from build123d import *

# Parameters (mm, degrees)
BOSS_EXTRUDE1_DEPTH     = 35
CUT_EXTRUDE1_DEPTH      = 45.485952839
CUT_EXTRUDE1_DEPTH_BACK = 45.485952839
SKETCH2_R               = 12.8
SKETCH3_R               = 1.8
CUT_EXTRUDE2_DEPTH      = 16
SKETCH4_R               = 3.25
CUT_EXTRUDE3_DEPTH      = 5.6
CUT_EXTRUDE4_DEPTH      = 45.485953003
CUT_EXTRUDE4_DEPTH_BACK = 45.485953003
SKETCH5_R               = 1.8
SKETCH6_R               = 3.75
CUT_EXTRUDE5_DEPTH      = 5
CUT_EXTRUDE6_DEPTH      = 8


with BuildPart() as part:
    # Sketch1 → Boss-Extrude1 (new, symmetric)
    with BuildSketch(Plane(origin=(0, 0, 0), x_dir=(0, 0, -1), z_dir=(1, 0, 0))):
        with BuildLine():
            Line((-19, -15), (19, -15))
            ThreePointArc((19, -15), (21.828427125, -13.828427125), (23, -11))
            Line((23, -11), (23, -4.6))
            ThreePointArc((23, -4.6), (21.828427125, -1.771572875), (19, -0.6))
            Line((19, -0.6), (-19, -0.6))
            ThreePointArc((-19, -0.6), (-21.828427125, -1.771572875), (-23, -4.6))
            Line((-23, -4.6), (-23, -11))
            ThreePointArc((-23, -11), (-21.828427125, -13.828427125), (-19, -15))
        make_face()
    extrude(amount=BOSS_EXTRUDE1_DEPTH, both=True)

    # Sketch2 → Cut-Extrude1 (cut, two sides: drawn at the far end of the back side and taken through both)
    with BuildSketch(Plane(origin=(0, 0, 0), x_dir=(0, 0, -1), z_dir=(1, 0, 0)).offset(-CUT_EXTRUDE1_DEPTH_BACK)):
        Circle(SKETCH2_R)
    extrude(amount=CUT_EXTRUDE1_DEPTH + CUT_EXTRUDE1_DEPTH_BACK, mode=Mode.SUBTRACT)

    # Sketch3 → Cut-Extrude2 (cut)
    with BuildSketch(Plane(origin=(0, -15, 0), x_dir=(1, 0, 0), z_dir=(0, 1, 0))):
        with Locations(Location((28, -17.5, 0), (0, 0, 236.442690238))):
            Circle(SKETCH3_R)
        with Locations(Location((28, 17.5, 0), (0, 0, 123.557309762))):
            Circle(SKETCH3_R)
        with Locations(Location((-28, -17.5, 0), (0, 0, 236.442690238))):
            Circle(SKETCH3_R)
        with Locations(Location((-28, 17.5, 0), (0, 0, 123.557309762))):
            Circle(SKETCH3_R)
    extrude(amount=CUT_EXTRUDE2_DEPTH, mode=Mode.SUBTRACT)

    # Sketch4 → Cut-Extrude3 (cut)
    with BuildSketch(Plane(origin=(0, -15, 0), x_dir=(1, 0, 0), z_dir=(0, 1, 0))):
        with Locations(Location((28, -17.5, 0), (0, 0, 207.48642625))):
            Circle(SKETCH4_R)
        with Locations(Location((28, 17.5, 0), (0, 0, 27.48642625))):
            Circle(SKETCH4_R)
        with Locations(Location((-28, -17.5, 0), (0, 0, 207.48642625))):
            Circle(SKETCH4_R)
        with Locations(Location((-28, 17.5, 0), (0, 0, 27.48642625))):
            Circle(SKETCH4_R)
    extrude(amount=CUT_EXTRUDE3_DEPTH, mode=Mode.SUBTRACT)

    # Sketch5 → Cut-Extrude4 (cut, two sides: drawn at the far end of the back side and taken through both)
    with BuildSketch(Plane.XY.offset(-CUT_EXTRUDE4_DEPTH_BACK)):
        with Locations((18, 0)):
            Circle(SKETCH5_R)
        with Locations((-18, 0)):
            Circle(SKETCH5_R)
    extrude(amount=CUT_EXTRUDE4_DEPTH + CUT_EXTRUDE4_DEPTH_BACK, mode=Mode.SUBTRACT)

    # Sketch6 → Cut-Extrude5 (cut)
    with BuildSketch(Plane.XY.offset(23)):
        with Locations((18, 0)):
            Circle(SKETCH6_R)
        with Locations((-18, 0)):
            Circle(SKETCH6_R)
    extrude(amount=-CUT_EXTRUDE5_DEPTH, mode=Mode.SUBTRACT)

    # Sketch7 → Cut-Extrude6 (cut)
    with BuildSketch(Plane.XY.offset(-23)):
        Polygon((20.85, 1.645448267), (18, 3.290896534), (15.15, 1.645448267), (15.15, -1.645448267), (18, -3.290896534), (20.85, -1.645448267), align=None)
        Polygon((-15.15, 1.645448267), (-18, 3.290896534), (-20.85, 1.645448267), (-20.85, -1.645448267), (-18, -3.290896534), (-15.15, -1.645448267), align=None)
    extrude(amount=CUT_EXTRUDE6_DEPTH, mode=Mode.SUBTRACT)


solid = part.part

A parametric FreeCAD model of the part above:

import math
import FreeCAD as App
import Part
import Sketcher

V = App.Vector
Q = App.Units.Quantity


def add_polygon(sketch, points):
    """Adds a closed chain of lines whose ends are joined by coincident constraints."""
    first, n = sketch.GeometryCount, len(points)
    for a, b in zip(points, points[1:] + points[:1]):
        sketch.addGeometry(Part.LineSegment(App.Vector(*a, 0), App.Vector(*b, 0)), False)
    for i in range(n):
        sketch.addConstraint(Sketcher.Constraint("Coincident", first + i, 2, first + (i + 1) % n, 1))

doc = App.newDocument("Part")
body = doc.addObject("PartDesign::Body", "Body")

# Sketch on YZ plane
sketch1 = body.newObject("Sketcher::SketchObject", "Sketch")
sketch1.AttachmentSupport = (doc.getObject("YZ_Plane"), [""])
sketch1.MapMode = "FlatFace"
sketch1.addGeometry([
    Part.LineSegment(V(-15, 19, 0), V(-15, -19, 0)),  # 0
    Part.ArcOfCircle(Part.Circle(V(-11, -19, 0), V(0, 0, 1), 4), math.radians(180), math.radians(270)),  # 1
    Part.LineSegment(V(-11, -23, 0), V(-4.6, -23, 0)),  # 2
    Part.ArcOfCircle(Part.Circle(V(-4.6, -19, 0), V(0, 0, 1), 4), math.radians(-90), math.radians(0)),  # 3
    Part.LineSegment(V(-0.6, -19, 0), V(-0.6, 19, 0)),  # 4
    Part.ArcOfCircle(Part.Circle(V(-4.6, 19, 0), V(0, 0, 1), 4), math.radians(0), math.radians(90)),  # 5
    Part.LineSegment(V(-4.6, 23, 0), V(-11, 23, 0)),  # 6
    Part.ArcOfCircle(Part.Circle(V(-11, 19, 0), V(0, 0, 1), 4), math.radians(90), math.radians(180)),  # 7
], False)
sketch1.addConstraint([
    Sketcher.Constraint("Tangent", 0, 2, 1, 1),
    Sketcher.Constraint("Tangent", 1, 2, 2, 1),
    Sketcher.Constraint("Tangent", 2, 2, 3, 1),
    Sketcher.Constraint("Tangent", 3, 2, 4, 1),
    Sketcher.Constraint("Tangent", 4, 2, 5, 1),
    Sketcher.Constraint("Tangent", 5, 2, 6, 1),
    Sketcher.Constraint("Tangent", 6, 2, 7, 1),
    Sketcher.Constraint("Tangent", 7, 2, 0, 1),
    Sketcher.Constraint("Vertical", 0),
    Sketcher.Constraint("Horizontal", 2),
    Sketcher.Constraint("Vertical", 4),
    Sketcher.Constraint("Horizontal", 6),
    Sketcher.Constraint("Equal", 1, 3),
    Sketcher.Constraint("Equal", 3, 5),
    Sketcher.Constraint("Equal", 5, 7),
    Sketcher.Constraint("Radius", 1, 4.0),
    Sketcher.Constraint("DistanceY", 0, 2, 0, 1, 38.0),
    Sketcher.Constraint("DistanceX", 2, 1, 2, 2, 6.4),
    Sketcher.Constraint("DistanceX", 1, 3, -1, 1, 11.0),
    Sketcher.Constraint("DistanceY", 1, 3, -1, 1, 19.0),
])
pad1 = body.newObject("PartDesign::Pad", "Pad")
pad1.Profile = sketch1
pad1.Length = 70
pad1.Midplane = True

# Sketch on YZ plane
sketch2 = body.newObject("Sketcher::SketchObject", "Sketch001")
sketch2.AttachmentSupport = (doc.getObject("YZ_Plane"), [""])
sketch2.MapMode = "FlatFace"
sketch2.addGeometry(Part.Circle(V(0, 0, 0), V(0, 0, 1), 12.8), False)
sketch2.addConstraint([
    Sketcher.Constraint("Coincident", 0, 3, -1, 1),
    Sketcher.Constraint("Diameter", 0, 25.6),
])
pocket1 = body.newObject("PartDesign::Pocket", "Pocket")
pocket1.Profile = sketch2
pocket1.Type = "ThroughAll"
pocket1.Midplane = True

# Sketch on XZ plane
sketch3 = body.newObject("Sketcher::SketchObject", "Sketch002")
sketch3.AttachmentSupport = (doc.getObject("XZ_Plane"), [""])
sketch3.MapMode = "FlatFace"
sketch3.AttachmentOffset = App.Placement(V(0, 0, 15), App.Rotation())
sketch3.addGeometry([
    Part.Circle(V(28, 17.5, 0), V(0, 0, 1), 1.8),
    Part.Circle(V(28, -17.5, 0), V(0, 0, 1), 1.8),
    Part.Circle(V(-28, 17.5, 0), V(0, 0, 1), 1.8),
    Part.Circle(V(-28, -17.5, 0), V(0, 0, 1), 1.8),
], False)
sketch3.addConstraint([
    Sketcher.Constraint("Equal", 0, 1),
    Sketcher.Constraint("Equal", 1, 2),
    Sketcher.Constraint("Equal", 2, 3),
    Sketcher.Constraint("Symmetric", 1, 3, 2, 3, -1, 1),
    Sketcher.Constraint("Symmetric", 0, 3, 3, 3, -1, 1),
    Sketcher.Constraint("Symmetric", 0, 3, 2, 3, -2),
    Sketcher.Constraint("Diameter", 0, 3.6),
    Sketcher.Constraint("DistanceX", -1, 1, 0, 3, 28.0),
    Sketcher.Constraint("DistanceY", 1, 3, 0, 3, 35.0),
])
pocket2 = body.newObject("PartDesign::Pocket", "Pocket001")
pocket2.Profile = sketch3
pocket2.Length = 16

# Sketch on XZ plane
sketch4 = body.newObject("Sketcher::SketchObject", "Sketch003")
sketch4.AttachmentSupport = (doc.getObject("XZ_Plane"), [""])
sketch4.MapMode = "FlatFace"
sketch4.AttachmentOffset = App.Placement(V(0, 0, 15), App.Rotation())
sketch4.addGeometry([
    Part.Circle(V(28, 17.5, 0), V(0, 0, 1), 3.25),
    Part.Circle(V(28, -17.5, 0), V(0, 0, 1), 3.25),
    Part.Circle(V(-28, 17.5, 0), V(0, 0, 1), 3.25),
    Part.Circle(V(-28, -17.5, 0), V(0, 0, 1), 3.25),
], False)
sketch4.addConstraint([
    Sketcher.Constraint("Equal", 0, 1),
    Sketcher.Constraint("Equal", 1, 2),
    Sketcher.Constraint("Equal", 2, 3),
    Sketcher.Constraint("Symmetric", 1, 3, 2, 3, -1, 1),
    Sketcher.Constraint("Symmetric", 0, 3, 3, 3, -1, 1),
    Sketcher.Constraint("Symmetric", 0, 3, 2, 3, -2),
    Sketcher.Constraint("Diameter", 0, 6.5),
    Sketcher.Constraint("DistanceX", -1, 1, 0, 3, 28.0),
    Sketcher.Constraint("DistanceY", 1, 3, 0, 3, 35.0),
])
pocket3 = body.newObject("PartDesign::Pocket", "Pocket002")
pocket3.Profile = sketch4
pocket3.Length = 5.6

# Sketch on XY plane
sketch5 = body.newObject("Sketcher::SketchObject", "Sketch004")
sketch5.AttachmentSupport = (doc.getObject("XY_Plane"), [""])
sketch5.MapMode = "FlatFace"
sketch5.addGeometry([
    Part.Circle(V(18, 0, 0), V(0, 0, 1), 1.8),
    Part.Circle(V(-18, 0, 0), V(0, 0, 1), 1.8),
], False)
sketch5.addConstraint([
    Sketcher.Constraint("Equal", 0, 1),
    Sketcher.Constraint("Symmetric", 0, 3, 1, 3, -1, 1),
    Sketcher.Constraint("PointOnObject", 0, 3, -1),
    Sketcher.Constraint("Diameter", 0, 3.6),
    Sketcher.Constraint("DistanceX", -1, 1, 0, 3, 18.0),
])
pocket4 = body.newObject("PartDesign::Pocket", "Pocket003")
pocket4.Profile = sketch5
pocket4.Type = "ThroughAll"
pocket4.Midplane = True

# Sketch on XY plane
sketch6 = body.newObject("Sketcher::SketchObject", "Sketch005")
sketch6.AttachmentSupport = (doc.getObject("XY_Plane"), [""])
sketch6.MapMode = "FlatFace"
sketch6.AttachmentOffset = App.Placement(V(0, 0, 23), App.Rotation())
sketch6.addGeometry([
    Part.Circle(V(18, 0, 0), V(0, 0, 1), 3.75),
    Part.Circle(V(-18, 0, 0), V(0, 0, 1), 3.75),
], False)
sketch6.addConstraint([
    Sketcher.Constraint("Equal", 0, 1),
    Sketcher.Constraint("Symmetric", 0, 3, 1, 3, -1, 1),
    Sketcher.Constraint("PointOnObject", 0, 3, -1),
    Sketcher.Constraint("Diameter", 0, 7.5),
    Sketcher.Constraint("DistanceX", -1, 1, 0, 3, 18.0),
])
pocket5 = body.newObject("PartDesign::Pocket", "Pocket004")
pocket5.Profile = sketch6
pocket5.Length = 5

# Sketch on XY plane
sketch7 = body.newObject("Sketcher::SketchObject", "Sketch006")
sketch7.AttachmentSupport = (doc.getObject("XY_Plane"), [""])
sketch7.MapMode = "FlatFace"
sketch7.AttachmentOffset = App.Placement(V(0, 0, -23), App.Rotation())
add_polygon(sketch7, [(20.85, 1.645448), (18, 3.290897), (15.15, 1.645448), (15.15, -1.645448), (18, -3.290897), (20.85, -1.645448)])  # lines 0-5
add_polygon(sketch7, [(-15.15, 1.645448), (-18, 3.290897), (-20.85, 1.645448), (-20.85, -1.645448), (-18, -3.290897), (-15.15, -1.645448)])  # lines 6-11
sketch7.addConstraint([
    Sketcher.Constraint("Vertical", 2),
    Sketcher.Constraint("Vertical", 5),
    Sketcher.Constraint("Vertical", 8),
    Sketcher.Constraint("Vertical", 11),
    Sketcher.Constraint("Symmetric", 3, 2, 6, 2, -1, 1),
    Sketcher.Constraint("Symmetric", 4, 2, 7, 2, -1, 1),
    Sketcher.Constraint("Symmetric", 0, 2, 9, 2, -1, 1),
    Sketcher.Constraint("Symmetric", 1, 2, 10, 2, -1, 1),
    Sketcher.Constraint("Symmetric", 0, 2, 6, 2, -2),
    Sketcher.Constraint("Parallel", 0, 3),
    Sketcher.Constraint("Parallel", 1, 4),
    Sketcher.Constraint("Parallel", 3, 6),
    Sketcher.Constraint("Parallel", 6, 9),
    Sketcher.Constraint("Horizontal", 2, 2, 4, 2),
    Sketcher.Constraint("Horizontal", 1, 2, 5, 2),
    Sketcher.Constraint("Angle", 0, Q("150 deg")),
    Sketcher.Constraint("DistanceX", -1, 1, 0, 2, 18.0),
    Sketcher.Constraint("DistanceX", 2, 2, 4, 2, 5.7),
    Sketcher.Constraint("DistanceY", 2, 2, 2, 1, 3.290897),
])
pocket6 = body.newObject("PartDesign::Pocket", "Pocket005")
pocket6.Profile = sketch7
pocket6.Length = 8
pocket6.Reversed = True

doc.recompute()
